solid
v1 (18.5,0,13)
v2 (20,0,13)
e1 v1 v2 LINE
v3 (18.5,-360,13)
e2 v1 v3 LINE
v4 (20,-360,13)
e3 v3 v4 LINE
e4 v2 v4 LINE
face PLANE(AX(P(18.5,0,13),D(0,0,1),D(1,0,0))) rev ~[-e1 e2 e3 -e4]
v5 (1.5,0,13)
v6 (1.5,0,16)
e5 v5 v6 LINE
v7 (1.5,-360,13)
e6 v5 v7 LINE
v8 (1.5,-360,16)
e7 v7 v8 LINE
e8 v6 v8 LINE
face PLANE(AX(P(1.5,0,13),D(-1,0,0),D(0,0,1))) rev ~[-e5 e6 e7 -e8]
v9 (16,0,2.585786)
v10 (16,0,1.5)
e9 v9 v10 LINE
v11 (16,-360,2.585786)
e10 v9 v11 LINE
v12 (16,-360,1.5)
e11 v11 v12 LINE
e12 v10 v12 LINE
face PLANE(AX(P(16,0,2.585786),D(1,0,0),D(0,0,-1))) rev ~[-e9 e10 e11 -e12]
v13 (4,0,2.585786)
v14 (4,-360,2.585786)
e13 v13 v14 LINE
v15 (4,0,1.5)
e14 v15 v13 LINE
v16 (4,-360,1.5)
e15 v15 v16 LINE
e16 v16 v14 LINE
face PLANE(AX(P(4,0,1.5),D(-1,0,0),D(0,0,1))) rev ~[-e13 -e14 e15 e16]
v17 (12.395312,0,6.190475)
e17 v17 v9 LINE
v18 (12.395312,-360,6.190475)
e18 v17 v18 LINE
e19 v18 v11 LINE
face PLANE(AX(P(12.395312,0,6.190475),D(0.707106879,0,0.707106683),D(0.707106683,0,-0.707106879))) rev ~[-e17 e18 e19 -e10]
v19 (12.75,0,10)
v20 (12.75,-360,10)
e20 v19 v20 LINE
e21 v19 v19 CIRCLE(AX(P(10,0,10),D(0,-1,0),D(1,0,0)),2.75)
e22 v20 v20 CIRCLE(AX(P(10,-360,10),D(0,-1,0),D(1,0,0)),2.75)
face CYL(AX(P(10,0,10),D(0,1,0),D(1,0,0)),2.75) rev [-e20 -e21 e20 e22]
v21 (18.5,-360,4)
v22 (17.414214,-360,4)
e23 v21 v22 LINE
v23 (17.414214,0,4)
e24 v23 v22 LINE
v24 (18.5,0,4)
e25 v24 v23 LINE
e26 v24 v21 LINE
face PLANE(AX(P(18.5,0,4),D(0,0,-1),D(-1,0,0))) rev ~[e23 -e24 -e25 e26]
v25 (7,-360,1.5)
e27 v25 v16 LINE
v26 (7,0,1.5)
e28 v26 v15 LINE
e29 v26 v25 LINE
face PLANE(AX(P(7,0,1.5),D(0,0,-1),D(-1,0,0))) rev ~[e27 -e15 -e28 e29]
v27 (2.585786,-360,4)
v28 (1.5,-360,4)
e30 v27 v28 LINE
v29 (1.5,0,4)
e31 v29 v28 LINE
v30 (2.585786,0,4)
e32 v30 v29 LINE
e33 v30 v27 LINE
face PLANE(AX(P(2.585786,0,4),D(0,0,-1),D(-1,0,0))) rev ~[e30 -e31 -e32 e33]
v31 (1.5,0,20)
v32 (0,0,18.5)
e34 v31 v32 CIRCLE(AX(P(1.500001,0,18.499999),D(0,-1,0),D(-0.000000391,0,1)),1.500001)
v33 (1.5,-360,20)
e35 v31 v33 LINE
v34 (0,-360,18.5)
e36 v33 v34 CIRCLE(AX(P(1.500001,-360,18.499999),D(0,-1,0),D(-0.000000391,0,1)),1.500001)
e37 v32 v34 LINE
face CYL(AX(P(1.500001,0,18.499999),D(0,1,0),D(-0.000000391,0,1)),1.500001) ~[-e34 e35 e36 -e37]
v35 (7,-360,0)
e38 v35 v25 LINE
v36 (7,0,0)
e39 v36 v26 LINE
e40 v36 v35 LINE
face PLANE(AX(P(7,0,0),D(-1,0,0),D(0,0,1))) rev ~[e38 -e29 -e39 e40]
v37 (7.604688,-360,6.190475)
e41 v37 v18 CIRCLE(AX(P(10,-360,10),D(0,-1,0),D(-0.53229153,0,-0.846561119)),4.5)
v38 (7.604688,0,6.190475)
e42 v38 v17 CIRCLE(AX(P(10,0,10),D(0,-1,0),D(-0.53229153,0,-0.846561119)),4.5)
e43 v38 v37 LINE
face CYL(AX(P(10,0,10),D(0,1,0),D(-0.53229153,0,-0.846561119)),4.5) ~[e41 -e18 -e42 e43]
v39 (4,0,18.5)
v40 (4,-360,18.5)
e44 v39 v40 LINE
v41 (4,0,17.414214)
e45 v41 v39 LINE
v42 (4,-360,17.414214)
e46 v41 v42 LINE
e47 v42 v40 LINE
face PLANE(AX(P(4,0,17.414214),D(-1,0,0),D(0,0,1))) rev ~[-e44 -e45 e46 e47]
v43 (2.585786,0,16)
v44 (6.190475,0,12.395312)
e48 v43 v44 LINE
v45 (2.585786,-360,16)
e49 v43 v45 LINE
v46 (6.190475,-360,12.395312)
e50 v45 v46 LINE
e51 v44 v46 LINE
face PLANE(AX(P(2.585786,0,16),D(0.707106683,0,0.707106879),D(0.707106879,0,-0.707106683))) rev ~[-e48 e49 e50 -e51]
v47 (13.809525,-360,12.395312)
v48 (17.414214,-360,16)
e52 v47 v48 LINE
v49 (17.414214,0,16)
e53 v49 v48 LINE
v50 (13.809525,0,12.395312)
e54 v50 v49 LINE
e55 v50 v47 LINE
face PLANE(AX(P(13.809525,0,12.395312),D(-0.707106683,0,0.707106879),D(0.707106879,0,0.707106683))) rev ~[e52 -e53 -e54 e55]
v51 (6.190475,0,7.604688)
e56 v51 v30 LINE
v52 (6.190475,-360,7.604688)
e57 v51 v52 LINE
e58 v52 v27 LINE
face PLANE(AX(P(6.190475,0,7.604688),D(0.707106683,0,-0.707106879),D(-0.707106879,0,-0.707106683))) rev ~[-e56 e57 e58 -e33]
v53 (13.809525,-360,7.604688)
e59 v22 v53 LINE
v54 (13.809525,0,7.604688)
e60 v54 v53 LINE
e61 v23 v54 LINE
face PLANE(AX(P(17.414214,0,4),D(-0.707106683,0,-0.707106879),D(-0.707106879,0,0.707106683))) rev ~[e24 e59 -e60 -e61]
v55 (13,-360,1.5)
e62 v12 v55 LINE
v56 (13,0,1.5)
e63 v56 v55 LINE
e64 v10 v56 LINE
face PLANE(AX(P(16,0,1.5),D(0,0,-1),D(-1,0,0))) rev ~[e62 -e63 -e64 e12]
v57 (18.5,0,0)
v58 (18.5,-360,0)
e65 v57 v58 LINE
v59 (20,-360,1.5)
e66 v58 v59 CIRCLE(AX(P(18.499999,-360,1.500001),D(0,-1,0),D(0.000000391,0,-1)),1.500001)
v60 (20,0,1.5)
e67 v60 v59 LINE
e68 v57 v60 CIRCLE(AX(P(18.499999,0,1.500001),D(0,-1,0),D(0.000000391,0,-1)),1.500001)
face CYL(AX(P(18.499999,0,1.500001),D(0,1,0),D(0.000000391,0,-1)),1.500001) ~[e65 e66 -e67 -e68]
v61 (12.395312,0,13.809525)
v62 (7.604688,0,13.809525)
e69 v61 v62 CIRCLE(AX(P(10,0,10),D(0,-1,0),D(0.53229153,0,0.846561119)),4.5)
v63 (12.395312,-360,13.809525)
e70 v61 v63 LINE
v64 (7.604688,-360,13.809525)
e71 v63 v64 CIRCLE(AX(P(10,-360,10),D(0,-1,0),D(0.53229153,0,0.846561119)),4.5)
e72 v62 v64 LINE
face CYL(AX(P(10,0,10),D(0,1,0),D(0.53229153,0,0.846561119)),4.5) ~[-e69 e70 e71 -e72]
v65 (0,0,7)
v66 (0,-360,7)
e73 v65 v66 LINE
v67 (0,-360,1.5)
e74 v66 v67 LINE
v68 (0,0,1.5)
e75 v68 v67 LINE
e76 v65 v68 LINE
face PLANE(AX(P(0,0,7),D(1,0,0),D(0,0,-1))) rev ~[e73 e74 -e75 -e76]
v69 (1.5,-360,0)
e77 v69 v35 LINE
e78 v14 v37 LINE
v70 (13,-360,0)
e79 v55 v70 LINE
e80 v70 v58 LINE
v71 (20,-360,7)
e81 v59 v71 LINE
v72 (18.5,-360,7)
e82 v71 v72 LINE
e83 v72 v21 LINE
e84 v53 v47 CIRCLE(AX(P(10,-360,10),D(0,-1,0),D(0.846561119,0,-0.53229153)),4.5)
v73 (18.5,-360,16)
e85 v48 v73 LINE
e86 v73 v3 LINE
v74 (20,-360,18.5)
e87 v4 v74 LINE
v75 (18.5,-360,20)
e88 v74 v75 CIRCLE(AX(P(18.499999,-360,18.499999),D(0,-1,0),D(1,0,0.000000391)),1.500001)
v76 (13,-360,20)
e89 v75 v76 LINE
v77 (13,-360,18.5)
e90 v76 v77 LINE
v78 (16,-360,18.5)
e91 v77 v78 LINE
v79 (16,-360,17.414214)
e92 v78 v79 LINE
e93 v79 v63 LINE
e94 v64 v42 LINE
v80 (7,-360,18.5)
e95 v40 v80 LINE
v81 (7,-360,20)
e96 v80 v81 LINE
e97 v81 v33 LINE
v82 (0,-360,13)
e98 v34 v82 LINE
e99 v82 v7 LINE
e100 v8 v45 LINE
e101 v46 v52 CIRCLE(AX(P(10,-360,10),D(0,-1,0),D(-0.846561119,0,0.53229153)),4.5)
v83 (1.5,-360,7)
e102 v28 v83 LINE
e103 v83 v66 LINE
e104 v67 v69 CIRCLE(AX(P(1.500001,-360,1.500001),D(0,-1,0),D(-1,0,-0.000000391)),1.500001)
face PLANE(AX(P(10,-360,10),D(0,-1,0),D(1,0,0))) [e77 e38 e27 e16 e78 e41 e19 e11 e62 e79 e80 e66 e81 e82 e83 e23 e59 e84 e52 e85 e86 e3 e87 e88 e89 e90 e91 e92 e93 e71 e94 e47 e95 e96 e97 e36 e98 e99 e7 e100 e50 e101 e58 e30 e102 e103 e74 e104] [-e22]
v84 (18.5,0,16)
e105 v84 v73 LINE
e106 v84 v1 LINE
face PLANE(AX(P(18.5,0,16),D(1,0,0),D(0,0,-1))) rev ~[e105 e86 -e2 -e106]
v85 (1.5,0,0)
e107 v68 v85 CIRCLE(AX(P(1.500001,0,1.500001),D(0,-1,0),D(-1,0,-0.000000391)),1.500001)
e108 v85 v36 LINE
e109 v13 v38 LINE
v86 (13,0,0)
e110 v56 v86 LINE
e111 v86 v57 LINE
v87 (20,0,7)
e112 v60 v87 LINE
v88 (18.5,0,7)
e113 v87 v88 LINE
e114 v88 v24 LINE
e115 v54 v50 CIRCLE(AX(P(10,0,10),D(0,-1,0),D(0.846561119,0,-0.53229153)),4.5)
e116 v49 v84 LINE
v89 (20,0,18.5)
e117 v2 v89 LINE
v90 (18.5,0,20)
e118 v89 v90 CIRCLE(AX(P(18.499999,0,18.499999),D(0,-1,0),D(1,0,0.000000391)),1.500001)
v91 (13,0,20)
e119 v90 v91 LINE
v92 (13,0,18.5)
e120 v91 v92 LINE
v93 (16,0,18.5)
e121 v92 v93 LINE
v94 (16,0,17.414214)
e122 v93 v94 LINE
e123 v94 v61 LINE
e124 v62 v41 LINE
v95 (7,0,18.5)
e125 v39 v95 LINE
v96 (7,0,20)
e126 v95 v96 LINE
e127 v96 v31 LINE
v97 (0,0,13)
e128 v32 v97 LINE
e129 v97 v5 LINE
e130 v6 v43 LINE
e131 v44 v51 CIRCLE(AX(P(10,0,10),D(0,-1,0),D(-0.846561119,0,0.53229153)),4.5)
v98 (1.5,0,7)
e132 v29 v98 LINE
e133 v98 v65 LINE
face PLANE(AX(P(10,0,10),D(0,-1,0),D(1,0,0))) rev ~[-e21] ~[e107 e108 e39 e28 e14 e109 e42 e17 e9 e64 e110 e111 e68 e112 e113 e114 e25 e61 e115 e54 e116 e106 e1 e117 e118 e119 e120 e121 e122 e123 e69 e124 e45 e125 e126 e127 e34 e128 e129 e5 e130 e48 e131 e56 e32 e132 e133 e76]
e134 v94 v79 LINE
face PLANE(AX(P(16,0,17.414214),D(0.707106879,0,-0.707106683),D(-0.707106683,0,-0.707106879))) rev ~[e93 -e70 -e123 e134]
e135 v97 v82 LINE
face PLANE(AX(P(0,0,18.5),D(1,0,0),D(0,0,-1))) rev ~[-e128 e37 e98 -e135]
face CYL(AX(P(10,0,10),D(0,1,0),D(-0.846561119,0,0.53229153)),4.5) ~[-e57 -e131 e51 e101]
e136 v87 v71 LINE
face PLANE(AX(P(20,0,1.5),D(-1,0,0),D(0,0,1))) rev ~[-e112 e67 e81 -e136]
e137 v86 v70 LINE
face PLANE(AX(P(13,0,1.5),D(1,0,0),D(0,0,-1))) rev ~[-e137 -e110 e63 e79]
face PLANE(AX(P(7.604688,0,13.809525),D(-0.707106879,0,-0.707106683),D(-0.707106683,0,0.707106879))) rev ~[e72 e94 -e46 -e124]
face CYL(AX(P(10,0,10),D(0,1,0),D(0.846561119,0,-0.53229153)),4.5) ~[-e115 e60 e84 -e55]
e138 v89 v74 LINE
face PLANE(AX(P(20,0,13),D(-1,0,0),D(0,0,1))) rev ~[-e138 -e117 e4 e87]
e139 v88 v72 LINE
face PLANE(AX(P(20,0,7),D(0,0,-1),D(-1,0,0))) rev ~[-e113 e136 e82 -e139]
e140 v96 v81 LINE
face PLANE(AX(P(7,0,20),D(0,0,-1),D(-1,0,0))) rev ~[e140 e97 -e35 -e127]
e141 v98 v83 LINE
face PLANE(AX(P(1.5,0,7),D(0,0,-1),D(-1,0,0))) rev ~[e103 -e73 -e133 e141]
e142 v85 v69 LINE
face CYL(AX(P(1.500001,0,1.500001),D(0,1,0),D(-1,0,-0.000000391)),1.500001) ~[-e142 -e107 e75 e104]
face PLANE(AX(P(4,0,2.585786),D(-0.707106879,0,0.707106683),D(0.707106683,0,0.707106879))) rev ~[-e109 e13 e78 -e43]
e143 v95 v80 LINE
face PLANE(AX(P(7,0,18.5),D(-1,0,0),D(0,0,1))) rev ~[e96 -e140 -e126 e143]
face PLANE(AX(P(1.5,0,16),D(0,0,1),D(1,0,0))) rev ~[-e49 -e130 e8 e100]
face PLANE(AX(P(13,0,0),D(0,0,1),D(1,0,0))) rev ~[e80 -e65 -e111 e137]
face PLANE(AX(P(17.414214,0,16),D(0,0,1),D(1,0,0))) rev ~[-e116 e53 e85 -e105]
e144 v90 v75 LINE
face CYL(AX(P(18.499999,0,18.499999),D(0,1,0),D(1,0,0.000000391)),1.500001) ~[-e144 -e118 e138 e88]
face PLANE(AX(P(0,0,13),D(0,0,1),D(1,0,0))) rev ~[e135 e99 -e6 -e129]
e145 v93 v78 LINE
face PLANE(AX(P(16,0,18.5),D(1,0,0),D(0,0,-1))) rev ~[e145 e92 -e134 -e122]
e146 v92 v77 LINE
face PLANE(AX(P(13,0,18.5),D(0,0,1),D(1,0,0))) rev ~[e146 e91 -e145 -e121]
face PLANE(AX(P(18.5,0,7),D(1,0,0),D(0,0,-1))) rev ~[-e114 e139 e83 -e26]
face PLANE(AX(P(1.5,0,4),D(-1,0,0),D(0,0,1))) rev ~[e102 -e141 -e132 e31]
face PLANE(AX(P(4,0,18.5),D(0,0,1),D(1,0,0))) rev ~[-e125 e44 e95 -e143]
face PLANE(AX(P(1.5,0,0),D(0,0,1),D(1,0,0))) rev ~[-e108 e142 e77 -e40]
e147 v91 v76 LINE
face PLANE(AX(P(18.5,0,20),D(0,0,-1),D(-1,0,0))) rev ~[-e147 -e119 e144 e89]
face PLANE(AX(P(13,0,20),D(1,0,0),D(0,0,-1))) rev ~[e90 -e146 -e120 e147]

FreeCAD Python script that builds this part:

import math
import FreeCAD as App
import Part
import Sketcher

V = App.Vector
Q = App.Units.Quantity

doc = App.newDocument("Part")
body = doc.addObject("PartDesign::Body", "Body")

sketch1 = doc.addObject("Sketcher::SketchObject", "Sketch")
body.addObject(sketch1)
sketch1.AttachmentSupport = (doc.XZ_Plane, [""])
sketch1.MapMode = "FlatFace"
sketch1.addGeometry([
    Part.ArcOfCircle(Part.Circle(V(1.5, 1.5, 0), V(0, 0, 1), 1.5), math.radians(-180), math.radians(-90)),
    Part.LineSegment(V(1.5, 0, 0), V(7, 0, 0)),
    Part.LineSegment(V(7, 0, 0), V(7, 1.5, 0)),
    Part.LineSegment(V(7, 1.5, 0), V(4, 1.5, 0)),
    Part.LineSegment(V(4, 1.5, 0), V(4, 2.6, 0)),
    Part.LineSegment(V(4, 2.6, 0), V(7.6, 6.2, 0)),
    Part.ArcOfCircle(Part.Circle(V(10, 10, 0), V(0, 0, 1), 4.5), math.radians(-122), math.radians(-58)),
    Part.LineSegment(V(12.4, 6.2, 0), V(16, 2.6, 0)),
    Part.LineSegment(V(16, 2.6, 0), V(16, 1.5, 0)),
    Part.LineSegment(V(16, 1.5, 0), V(13, 1.5, 0)),
    Part.LineSegment(V(13, 1.5, 0), V(13, 0, 0)),
    Part.LineSegment(V(13, 0, 0), V(18.5, 0, 0)),
    Part.ArcOfCircle(Part.Circle(V(18.5, 1.5, 0), V(0, 0, 1), 1.5), math.radians(-90), math.radians(0)),
    Part.LineSegment(V(20, 1.5, 0), V(20, 7, 0)),
    Part.LineSegment(V(20, 7, 0), V(18.5, 7, 0)),
    Part.LineSegment(V(18.5, 7, 0), V(18.5, 4, 0)),
    Part.LineSegment(V(18.5, 4, 0), V(17.4, 4, 0)),
    Part.LineSegment(V(17.4, 4, 0), V(13.8, 7.6, 0)),
    Part.ArcOfCircle(Part.Circle(V(10, 10, 0), V(0, 0, 1), 4.5), math.radians(-32), math.radians(32)),
    Part.LineSegment(V(13.8, 12.4, 0), V(17.4, 16, 0)),
    Part.LineSegment(V(17.4, 16, 0), V(18.5, 16, 0)),
    Part.LineSegment(V(18.5, 16, 0), V(18.5, 13, 0)),
    Part.LineSegment(V(18.5, 13, 0), V(20, 13, 0)),
    Part.LineSegment(V(20, 13, 0), V(20, 18.5, 0)),
    Part.ArcOfCircle(Part.Circle(V(18.5, 18.5, 0), V(0, 0, 1), 1.5), math.radians(0), math.radians(90)),
    Part.LineSegment(V(18.5, 20, 0), V(13, 20, 0)),
    Part.LineSegment(V(13, 20, 0), V(13, 18.5, 0)),
    Part.LineSegment(V(13, 18.5, 0), V(16, 18.5, 0)),
    Part.LineSegment(V(16, 18.5, 0), V(16, 17.4, 0)),
    Part.LineSegment(V(16, 17.4, 0), V(12.4, 13.8, 0)),
    Part.ArcOfCircle(Part.Circle(V(10, 10, 0), V(0, 0, 1), 4.5), math.radians(58), math.radians(122)),
    Part.LineSegment(V(7.6, 13.8, 0), V(4, 17.4, 0)),
    Part.LineSegment(V(4, 17.4, 0), V(4, 18.5, 0)),
    Part.LineSegment(V(4, 18.5, 0), V(7, 18.5, 0)),
    Part.LineSegment(V(7, 18.5, 0), V(7, 20, 0)),
    Part.LineSegment(V(7, 20, 0), V(1.5, 20, 0)),
    Part.ArcOfCircle(Part.Circle(V(1.5, 18.5, 0), V(0, 0, 1), 1.5), math.radians(90), math.radians(180)),
    Part.LineSegment(V(0, 18.5, 0), V(0, 13, 0)),
    Part.LineSegment(V(0, 13, 0), V(1.5, 13, 0)),
    Part.LineSegment(V(1.5, 13, 0), V(1.5, 16, 0)),
    Part.LineSegment(V(1.5, 16, 0), V(2.6, 16, 0)),
    Part.LineSegment(V(2.6, 16, 0), V(6.2, 12.4, 0)),
    Part.ArcOfCircle(Part.Circle(V(10, 10, 0), V(0, 0, 1), 4.5), math.radians(148), math.radians(212)),
    Part.LineSegment(V(6.2, 7.6, 0), V(2.6, 4, 0)),
    Part.LineSegment(V(2.6, 4, 0), V(1.5, 4, 0)),
    Part.LineSegment(V(1.5, 4, 0), V(1.5, 7, 0)),
    Part.LineSegment(V(1.5, 7, 0), V(0, 7, 0)),
    Part.LineSegment(V(0, 7, 0), V(0, 1.5, 0)),
    Part.Circle(V(10, 10, 0), V(0, 0, 1), 2.8),
], False)
sketch1.addConstraint([
    Sketcher.Constraint("Tangent", 0, 2, 1, 1),
    Sketcher.Constraint("Coincident", 1, 2, 2, 1),
    Sketcher.Constraint("Coincident", 2, 2, 3, 1),
    Sketcher.Constraint("Coincident", 3, 2, 4, 1),
    Sketcher.Constraint("Coincident", 4, 2, 5, 1),
    Sketcher.Constraint("Coincident", 5, 2, 6, 1),
    Sketcher.Constraint("Coincident", 6, 2, 7, 1),
    Sketcher.Constraint("Coincident", 7, 2, 8, 1),
    Sketcher.Constraint("Coincident", 8, 2, 9, 1),
    Sketcher.Constraint("Coincident", 9, 2, 10, 1),
    Sketcher.Constraint("Coincident", 10, 2, 11, 1),
    Sketcher.Constraint("Tangent", 11, 2, 12, 1),
    Sketcher.Constraint("Tangent", 12, 2, 13, 1),
    Sketcher.Constraint("Coincident", 13, 2, 14, 1),
    Sketcher.Constraint("Coincident", 14, 2, 15, 1),
    Sketcher.Constraint("Coincident", 15, 2, 16, 1),
    Sketcher.Constraint("Coincident", 16, 2, 17, 1),
    Sketcher.Constraint("Coincident", 17, 2, 18, 1),
    Sketcher.Constraint("Coincident", 18, 2, 19, 1),
    Sketcher.Constraint("Coincident", 19, 2, 20, 1),
    Sketcher.Constraint("Coincident", 20, 2, 21, 1),
    Sketcher.Constraint("Coincident", 21, 2, 22, 1),
    Sketcher.Constraint("Coincident", 22, 2, 23, 1),
    Sketcher.Constraint("Tangent", 23, 2, 24, 1),
    Sketcher.Constraint("Tangent", 24, 2, 25, 1),
    Sketcher.Constraint("Coincident", 25, 2, 26, 1),
    Sketcher.Constraint("Coincident", 26, 2, 27, 1),
    Sketcher.Constraint("Coincident", 27, 2, 28, 1),
    Sketcher.Constraint("Coincident", 28, 2, 29, 1),
    Sketcher.Constraint("Coincident", 29, 2, 30, 1),
    Sketcher.Constraint("Coincident", 30, 2, 31, 1),
    Sketcher.Constraint("Coincident", 31, 2, 32, 1),
    Sketcher.Constraint("Coincident", 32, 2, 33, 1),
    Sketcher.Constraint("Coincident", 33, 2, 34, 1),
    Sketcher.Constraint("Coincident", 34, 2, 35, 1),
    Sketcher.Constraint("Tangent", 35, 2, 36, 1),
    Sketcher.Constraint("Tangent", 36, 2, 37, 1),
    Sketcher.Constraint("Coincident", 37, 2, 38, 1),
    Sketcher.Constraint("Coincident", 38, 2, 39, 1),
    Sketcher.Constraint("Coincident", 39, 2, 40, 1),
    Sketcher.Constraint("Coincident", 40, 2, 41, 1),
    Sketcher.Constraint("Coincident", 41, 2, 42, 1),
    Sketcher.Constraint("Coincident", 42, 2, 43, 1),
    Sketcher.Constraint("Coincident", 43, 2, 44, 1),
    Sketcher.Constraint("Coincident", 44, 2, 45, 1),
    Sketcher.Constraint("Coincident", 45, 2, 46, 1),
    Sketcher.Constraint("Coincident", 46, 2, 47, 1),
    Sketcher.Constraint("Tangent", 47, 2, 0, 1),
    Sketcher.Constraint("Horizontal", 1),
    Sketcher.Constraint("Vertical", 2),
    Sketcher.Constraint("Horizontal", 3),
    Sketcher.Constraint("Vertical", 4),
    Sketcher.Constraint("Vertical", 8),
    Sketcher.Constraint("Horizontal", 9),
    Sketcher.Constraint("Vertical", 10),
    Sketcher.Constraint("Horizontal", 11),
    Sketcher.Constraint("Vertical", 13),
    Sketcher.Constraint("Horizontal", 14),
    Sketcher.Constraint("Vertical", 15),
    Sketcher.Constraint("Horizontal", 16),
    Sketcher.Constraint("Horizontal", 20),
    Sketcher.Constraint("Vertical", 21),
    Sketcher.Constraint("Horizontal", 22),
    Sketcher.Constraint("Vertical", 23),
    Sketcher.Constraint("Horizontal", 25),
    Sketcher.Constraint("Vertical", 26),
    Sketcher.Constraint("Horizontal", 27),
    Sketcher.Constraint("Vertical", 28),
    Sketcher.Constraint("Vertical", 32),
    Sketcher.Constraint("Horizontal", 33),
    Sketcher.Constraint("Vertical", 34),
    Sketcher.Constraint("Horizontal", 35),
    Sketcher.Constraint("Vertical", 37),
    Sketcher.Constraint("Horizontal", 38),
    Sketcher.Constraint("Vertical", 39),
    Sketcher.Constraint("Horizontal", 40),
    Sketcher.Constraint("Horizontal", 44),
    Sketcher.Constraint("Vertical", 45),
    Sketcher.Constraint("Horizontal", 46),
    Sketcher.Constraint("Vertical", 47),
    Sketcher.Constraint("Coincident", 18, 3, 6, 3),
    Sketcher.Constraint("Coincident", 30, 3, 6, 3),
    Sketcher.Constraint("Coincident", 42, 3, 6, 3),
    Sketcher.Constraint("Coincident", 48, 3, 6, 3),
    Sketcher.Constraint("Equal", 0, 12),
    Sketcher.Constraint("Equal", 6, 18),
    Sketcher.Constraint("Equal", 12, 24),
    Sketcher.Constraint("Equal", 18, 30),
    Sketcher.Constraint("Equal", 24, 36),
    Sketcher.Constraint("Equal", 30, 42),
    Sketcher.Constraint("PointOnObject", 0, 2, -1),
    Sketcher.Constraint("PointOnObject", 10, 2, -1),
    Sketcher.Constraint("PointOnObject", 36, 2, -2),
    Sketcher.Constraint("PointOnObject", 46, 2, -2),
    Sketcher.Constraint("Perpendicular", 5, 7),
    Sketcher.Constraint("Parallel", 7, 17),
    Sketcher.Constraint("Perpendicular", 17, 19),
    Sketcher.Constraint("Parallel", 19, 29),
    Sketcher.Constraint("Perpendicular", 29, 31),
    Sketcher.Constraint("Parallel", 31, 41),
    Sketcher.Constraint("Perpendicular", 41, 43),
    Sketcher.Constraint("Horizontal", 24, 3, 36, 3),
    Sketcher.Constraint("Horizontal", 12, 3, 2, 2),
    Sketcher.Constraint("Horizontal", 5, 2, 6, 2),
    Sketcher.Constraint("Horizontal", 4, 2, 7, 2),
    Sketcher.Constraint("Horizontal", 3, 2, 8, 2),
    Sketcher.Constraint("Horizontal", 23, 2, 26, 2),
    Sketcher.Constraint("Horizontal", 29, 2, 30, 2),
    Sketcher.Constraint("Horizontal", 28, 2, 31, 2),
    Sketcher.Constraint("Horizontal", 27, 2, 32, 2),
    Sketcher.Constraint("Horizontal", 22, 2, 37, 2),
    Sketcher.Constraint("Horizontal", 20, 2, 39, 2),
    Sketcher.Constraint("Horizontal", 18, 2, 41, 2),
    Sketcher.Constraint("Horizontal", 17, 2, 42, 2),
    Sketcher.Constraint("Horizontal", 16, 2, 43, 2),
    Sketcher.Constraint("Horizontal", 14, 2, 45, 2),
    Sketcher.Constraint("Vertical", 12, 3, 24, 3),
    Sketcher.Constraint("Vertical", 11, 2, 14, 2),
    Sketcher.Constraint("Vertical", 17, 2, 18, 2),
    Sketcher.Constraint("Vertical", 16, 2, 19, 2),
    Sketcher.Constraint("Vertical", 15, 2, 20, 2),
    Sketcher.Constraint("Vertical", 10, 2, 25, 2),
    Sketcher.Constraint("Vertical", 8, 2, 27, 2),
    Sketcher.Constraint("Vertical", 6, 2, 29, 2),
    Sketcher.Constraint("Vertical", 4, 2, 31, 2),
    Sketcher.Constraint("Vertical", 2, 2, 33, 2),
    Sketcher.Constraint("Vertical", 35, 2, 38, 2),
    Sketcher.Constraint("Vertical", 39, 2, 44, 2),
    Sketcher.Constraint("Equal", 3, 9),
    Sketcher.Constraint("Equal", 1, 11),
    Sketcher.Constraint("Equal", 44, 4),
    Sketcher.Constraint("Equal", 35, 13),
    Sketcher.Constraint("Equal", 33, 15),
    Sketcher.Constraint("Equal", 15, 21),
    Sketcher.Constraint("Equal", 13, 23),
    Sketcher.Constraint("Equal", 7, 17),
    Sketcher.Constraint("Diameter", 48, Q("5.5 mm")),
    Sketcher.Constraint("Radius", 0, Q("1.500001 mm")),
    Sketcher.Constraint("Radius", 6, Q("4.5 mm")),
    Sketcher.Constraint("DistanceX", 3, 2, 3, 1, Q("3 mm")),
    Sketcher.Constraint("DistanceX", 1, 1, 1, 2, Q("5.5 mm")),
    Sketcher.Constraint("DistanceX", -1, 1, 6, 3, Q("10 mm")),
    Sketcher.Constraint("Distance", 5, Q("5.097799 mm")),
])
pad1 = doc.addObject("PartDesign::Pad", "Pad")
body.addObject(pad1)
pad1.Profile = sketch1
pad1.Length = 360

doc.recompute()
